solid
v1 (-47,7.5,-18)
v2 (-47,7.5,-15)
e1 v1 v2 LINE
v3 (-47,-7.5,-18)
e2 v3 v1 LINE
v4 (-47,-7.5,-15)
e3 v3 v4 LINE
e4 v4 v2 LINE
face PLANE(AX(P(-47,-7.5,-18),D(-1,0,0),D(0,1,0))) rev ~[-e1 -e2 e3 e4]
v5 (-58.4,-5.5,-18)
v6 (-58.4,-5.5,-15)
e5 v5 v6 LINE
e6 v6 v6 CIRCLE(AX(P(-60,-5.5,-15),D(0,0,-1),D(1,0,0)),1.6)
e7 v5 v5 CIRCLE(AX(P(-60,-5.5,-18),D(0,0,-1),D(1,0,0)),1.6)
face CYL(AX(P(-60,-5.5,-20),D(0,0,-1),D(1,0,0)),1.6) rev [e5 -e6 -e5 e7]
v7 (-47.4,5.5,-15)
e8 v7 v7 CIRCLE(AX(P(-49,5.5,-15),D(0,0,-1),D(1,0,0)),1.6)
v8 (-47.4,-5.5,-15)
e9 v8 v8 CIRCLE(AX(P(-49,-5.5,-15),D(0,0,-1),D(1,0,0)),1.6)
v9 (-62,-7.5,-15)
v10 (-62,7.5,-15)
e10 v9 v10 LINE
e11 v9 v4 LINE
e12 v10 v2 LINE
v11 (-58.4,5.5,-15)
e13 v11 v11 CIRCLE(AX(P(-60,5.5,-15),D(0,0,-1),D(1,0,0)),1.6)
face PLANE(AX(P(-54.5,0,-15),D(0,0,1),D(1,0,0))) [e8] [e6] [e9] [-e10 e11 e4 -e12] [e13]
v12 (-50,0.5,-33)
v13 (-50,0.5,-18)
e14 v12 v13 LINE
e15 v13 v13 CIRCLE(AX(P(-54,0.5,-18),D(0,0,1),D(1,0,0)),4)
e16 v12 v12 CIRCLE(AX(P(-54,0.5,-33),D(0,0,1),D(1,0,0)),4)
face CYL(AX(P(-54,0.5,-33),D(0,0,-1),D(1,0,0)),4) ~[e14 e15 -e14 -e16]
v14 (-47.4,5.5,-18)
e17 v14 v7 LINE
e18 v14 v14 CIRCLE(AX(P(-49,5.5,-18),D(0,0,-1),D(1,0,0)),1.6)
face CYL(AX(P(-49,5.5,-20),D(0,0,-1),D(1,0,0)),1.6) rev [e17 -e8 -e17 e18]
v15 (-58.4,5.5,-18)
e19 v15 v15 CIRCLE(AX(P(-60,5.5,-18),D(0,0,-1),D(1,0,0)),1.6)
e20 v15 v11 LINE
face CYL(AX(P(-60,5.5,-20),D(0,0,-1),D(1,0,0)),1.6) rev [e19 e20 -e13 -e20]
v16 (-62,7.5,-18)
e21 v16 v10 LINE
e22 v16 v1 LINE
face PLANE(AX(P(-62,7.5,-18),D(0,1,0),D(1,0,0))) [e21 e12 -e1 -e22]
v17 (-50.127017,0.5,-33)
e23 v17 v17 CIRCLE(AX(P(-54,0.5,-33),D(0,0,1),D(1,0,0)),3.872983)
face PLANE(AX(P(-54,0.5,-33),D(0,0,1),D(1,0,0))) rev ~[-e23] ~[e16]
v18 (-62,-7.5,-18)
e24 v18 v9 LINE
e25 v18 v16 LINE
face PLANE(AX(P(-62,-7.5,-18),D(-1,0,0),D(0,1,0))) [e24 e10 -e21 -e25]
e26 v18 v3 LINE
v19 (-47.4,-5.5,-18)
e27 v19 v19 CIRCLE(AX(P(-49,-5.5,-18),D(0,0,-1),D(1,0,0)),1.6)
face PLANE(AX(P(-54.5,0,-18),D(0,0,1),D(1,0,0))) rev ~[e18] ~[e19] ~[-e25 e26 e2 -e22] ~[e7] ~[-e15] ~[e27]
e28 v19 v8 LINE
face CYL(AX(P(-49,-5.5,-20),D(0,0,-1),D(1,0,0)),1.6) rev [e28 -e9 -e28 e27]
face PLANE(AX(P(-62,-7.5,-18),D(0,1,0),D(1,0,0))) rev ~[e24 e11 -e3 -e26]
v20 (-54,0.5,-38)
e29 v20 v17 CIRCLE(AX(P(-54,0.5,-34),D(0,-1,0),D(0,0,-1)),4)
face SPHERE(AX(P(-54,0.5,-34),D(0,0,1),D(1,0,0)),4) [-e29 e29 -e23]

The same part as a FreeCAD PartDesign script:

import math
import FreeCAD as App
import Part
import Sketcher

V = App.Vector
Q = App.Units.Quantity


def add_polygon(sketch, points):
    """Adds a closed chain of lines whose ends are joined by coincident constraints."""
    first, n = sketch.GeometryCount, len(points)
    for a, b in zip(points, points[1:] + points[:1]):
        sketch.addGeometry(Part.LineSegment(App.Vector(*a, 0), App.Vector(*b, 0)), False)
    for i in range(n):
        sketch.addConstraint(Sketcher.Constraint("Coincident", first + i, 2, first + (i + 1) % n, 1))

doc = App.newDocument("Part")
body = doc.addObject("PartDesign::Body", "Body")

sketch1 = doc.addObject("Sketcher::SketchObject", "Sketch")
body.addObject(sketch1)
sketch1.AttachmentSupport = (doc.XY_Plane, [""])
sketch1.MapMode = "FlatFace"
sketch1.AttachmentOffset = App.Placement(V(0, 0, -20), App.Rotation())
sketch1.addGeometry(Part.Circle(V(32, 5, 0), V(0, 0, 1), 1.6), False)
sketch1.addConstraint(Sketcher.Constraint("Diameter", 0, Q("3.2 mm")))
sketch1.addConstraint(Sketcher.Constraint("DistanceX", -1, 1, 0, 3, Q("32 mm")))
sketch1.addConstraint(Sketcher.Constraint("DistanceY", -1, 1, 0, 3, Q("5 mm")))
pad1 = doc.addObject("PartDesign::Pad", "Pad")
body.addObject(pad1)
pad1.Profile = sketch1
pad1.Length = 10
body2 = doc.addObject("PartDesign::Body", "Body001")

sketch2 = doc.addObject("Sketcher::SketchObject", "Sketch001")
body2.addObject(sketch2)
sketch2.AttachmentSupport = (doc.getObject("XY_Plane001"), [""])
sketch2.MapMode = "FlatFace"
sketch2.AttachmentOffset = App.Placement(V(0, 0, -20), App.Rotation())
sketch2.addGeometry(Part.Circle(V(21, -6, 0), V(0, 0, 1), 1.6), False)
sketch2.addConstraint(Sketcher.Constraint("Diameter", 0, Q("3.2 mm")))
sketch2.addConstraint(Sketcher.Constraint("DistanceX", -1, 1, 0, 3, Q("21 mm")))
sketch2.addConstraint(Sketcher.Constraint("DistanceY", 0, 3, -1, 1, Q("6 mm")))
pad2 = doc.addObject("PartDesign::Pad", "Pad001")
body2.addObject(pad2)
pad2.Profile = sketch2
pad2.Length = 10
body3 = doc.addObject("PartDesign::Body", "Body002")

sketch3 = doc.addObject("Sketcher::SketchObject", "Sketch002")
body3.addObject(sketch3)
sketch3.AttachmentSupport = (doc.getObject("XY_Plane002"), [""])
sketch3.MapMode = "FlatFace"
sketch3.AttachmentOffset = App.Placement(V(0, 0, -20), App.Rotation())
sketch3.addGeometry(Part.Circle(V(21, 5, 0), V(0, 0, 1), 1.6), False)
sketch3.addConstraint(Sketcher.Constraint("Diameter", 0, Q("3.2 mm")))
sketch3.addConstraint(Sketcher.Constraint("DistanceX", -1, 1, 0, 3, Q("21 mm")))
sketch3.addConstraint(Sketcher.Constraint("DistanceY", -1, 1, 0, 3, Q("5 mm")))
pad3 = doc.addObject("PartDesign::Pad", "Pad002")
body3.addObject(pad3)
pad3.Profile = sketch3
pad3.Length = 10
body4 = doc.addObject("PartDesign::Body", "Body003")
body4.AllowCompound = True

sketch4 = doc.addObject("Sketcher::SketchObject", "Sketch003")
body4.addObject(sketch4)
sketch4.AttachmentSupport = (doc.getObject("XY_Plane003"), [""])
sketch4.MapMode = "FlatFace"
sketch4.AttachmentOffset = App.Placement(V(0, 0, -20), App.Rotation())
sketch4.addGeometry(Part.Circle(V(32, -6, 0), V(0, 0, 1), 1.6), False)
sketch4.addConstraint(Sketcher.Constraint("Diameter", 0, Q("3.2 mm")))
sketch4.addConstraint(Sketcher.Constraint("DistanceX", -1, 1, 0, 3, Q("32 mm")))
sketch4.addConstraint(Sketcher.Constraint("DistanceY", 0, 3, -1, 1, Q("6 mm")))
pad4 = doc.addObject("PartDesign::Pad", "Pad003")
body4.addObject(pad4)
pad4.Profile = sketch4
pad4.Length = 10
doc.recompute()

boolean = doc.addObject("PartDesign::Boolean", "Boolean")
body4.addObject(boolean)
boolean.Type = "Fuse"
boolean.addObjects([body])
doc.recompute()

boolean2 = doc.addObject("PartDesign::Boolean", "Boolean001")
body4.addObject(boolean2)
boolean2.Type = "Fuse"
boolean2.addObjects([body2])
doc.recompute()

boolean3 = doc.addObject("PartDesign::Boolean", "Boolean002")
body4.addObject(boolean3)
boolean3.Type = "Fuse"
boolean3.addObjects([body3])
body5 = doc.addObject("PartDesign::Body", "Body004")

sketch5 = doc.addObject("Sketcher::SketchObject", "Sketch004")
body5.addObject(sketch5)
sketch5.AttachmentSupport = (doc.getObject("XY_Plane004"), [""])
sketch5.MapMode = "FlatFace"
sketch5.AttachmentOffset = App.Placement(V(0, 0, 4), App.Rotation())
add_polygon(sketch5, [(-8, 7), (-8, -8), (7, -8), (7, 7)])
sketch5.addConstraint(Sketcher.Constraint("Vertical", 0))
sketch5.addConstraint(Sketcher.Constraint("Horizontal", 1))
sketch5.addConstraint(Sketcher.Constraint("Vertical", 2))
sketch5.addConstraint(Sketcher.Constraint("Horizontal", 3))
sketch5.addConstraint(Sketcher.Constraint("Equal", 3, 0))
sketch5.addConstraint(Sketcher.Constraint("DistanceX", 1, 1, 1, 2, Q("15 mm")))
sketch5.addConstraint(Sketcher.Constraint("DistanceX", 0, 2, -1, 1, Q("8 mm")))
sketch5.addConstraint(Sketcher.Constraint("DistanceY", 0, 2, -1, 1, Q("8 mm")))
pad5 = doc.addObject("PartDesign::Pad", "Pad004")
body5.addObject(pad5)
pad5.Profile = sketch5
pad5.Length = 3
body6 = doc.addObject("PartDesign::Body", "Body005")

sketch6 = doc.addObject("Sketcher::SketchObject", "Sketch005")
body6.addObject(sketch6)
sketch6.AttachmentSupport = (doc.getObject("XZ_Plane005"), [""])
sketch6.MapMode = "FlatFace"
sketch6.addGeometry(Part.ArcOfCircle(Part.Circle(V(0, -16, 0), V(0, 0, 1), 4), math.radians(-90), math.radians(90)), False)
sketch6.addGeometry(Part.LineSegment(V(0, -12, 0), V(0, -20, 0)), False)
sketch6.addConstraint(Sketcher.Constraint("Coincident", 0, 1, 1, 2))
sketch6.addConstraint(Sketcher.Constraint("Coincident", 1, 1, 0, 2))
sketch6.addConstraint(Sketcher.Constraint("Vertical", 1))
sketch6.addConstraint(Sketcher.Constraint("PointOnObject", 0, 3, -2))
sketch6.addConstraint(Sketcher.Constraint("PointOnObject", 0, 1, -2))
sketch6.addConstraint(Sketcher.Constraint("Radius", 0, Q("4 mm")))
sketch6.addConstraint(Sketcher.Constraint("DistanceY", 0, 3, -1, 1, Q("16 mm")))
revolution = doc.addObject("PartDesign::Revolution", "Revolution")
body6.addObject(revolution)
revolution.Profile = sketch6
revolution.ReferenceAxis = (sketch6, ["V_Axis"])
revolution.Angle = 360
body7 = doc.addObject("PartDesign::Body", "Body006")

sketch7 = doc.addObject("Sketcher::SketchObject", "Sketch006")
body7.addObject(sketch7)
sketch7.AttachmentSupport = (doc.getObject("XY_Plane006"), [""])
sketch7.MapMode = "FlatFace"
sketch7.AttachmentOffset = App.Placement(V(0, 0, -15), App.Rotation())
sketch7.addGeometry(Part.Circle(V(0, 0, 0), V(0, 0, 1), 4), False)
sketch7.addConstraint(Sketcher.Constraint("Coincident", 0, 3, -1, 1))
sketch7.addConstraint(Sketcher.Constraint("Diameter", 0, Q("8 mm")))
pad6 = doc.addObject("PartDesign::Pad", "Pad005")
body7.addObject(pad6)
pad6.Profile = sketch7
pad6.Length = 15
doc.recompute()

boolean4 = doc.addObject("PartDesign::Boolean", "Boolean003")
body7.addObject(boolean4)
boolean4.Type = "Fuse"
boolean4.addObjects([body6])
body8 = doc.addObject("PartDesign::Body", "Body007")
doc.recompute()

body7.Placement = App.Placement(V(0, 0, 4), App.Rotation(V(0, 0, 1), 0))
boolean5 = doc.addObject("PartDesign::Boolean", "Boolean004")
body8.addObject(boolean5)
boolean5.Type = "Fuse"
boolean5.addObjects([body7])
doc.recompute()

boolean6 = doc.addObject("PartDesign::Boolean", "Boolean005")
body8.addObject(boolean6)
boolean6.Type = "Fuse"
boolean6.addObjects([body5])
body9 = doc.addObject("PartDesign::Body", "Body008")
doc.recompute()

body8.Placement = App.Placement(V(27, 0, -22), App.Rotation(V(0, 0, 1), 0))
boolean7 = doc.addObject("PartDesign::Boolean", "Boolean006")
body9.addObject(boolean7)
boolean7.Type = "Fuse"
boolean7.addObjects([body8])
doc.recompute()

boolean8 = doc.addObject("PartDesign::Boolean", "Boolean007")
body9.addObject(boolean8)
boolean8.Type = "Cut"
boolean8.addObjects([body4])
body10 = doc.addObject("PartDesign::Body", "Body009")
doc.recompute()

body9.Placement = App.Placement(V(-81, 0.5, 0), App.Rotation(V(0, 0, 1), 0))
boolean9 = doc.addObject("PartDesign::Boolean", "Boolean008")
body10.addObject(boolean9)
boolean9.Type = "Fuse"
boolean9.addObjects([body9])

doc.recompute()
